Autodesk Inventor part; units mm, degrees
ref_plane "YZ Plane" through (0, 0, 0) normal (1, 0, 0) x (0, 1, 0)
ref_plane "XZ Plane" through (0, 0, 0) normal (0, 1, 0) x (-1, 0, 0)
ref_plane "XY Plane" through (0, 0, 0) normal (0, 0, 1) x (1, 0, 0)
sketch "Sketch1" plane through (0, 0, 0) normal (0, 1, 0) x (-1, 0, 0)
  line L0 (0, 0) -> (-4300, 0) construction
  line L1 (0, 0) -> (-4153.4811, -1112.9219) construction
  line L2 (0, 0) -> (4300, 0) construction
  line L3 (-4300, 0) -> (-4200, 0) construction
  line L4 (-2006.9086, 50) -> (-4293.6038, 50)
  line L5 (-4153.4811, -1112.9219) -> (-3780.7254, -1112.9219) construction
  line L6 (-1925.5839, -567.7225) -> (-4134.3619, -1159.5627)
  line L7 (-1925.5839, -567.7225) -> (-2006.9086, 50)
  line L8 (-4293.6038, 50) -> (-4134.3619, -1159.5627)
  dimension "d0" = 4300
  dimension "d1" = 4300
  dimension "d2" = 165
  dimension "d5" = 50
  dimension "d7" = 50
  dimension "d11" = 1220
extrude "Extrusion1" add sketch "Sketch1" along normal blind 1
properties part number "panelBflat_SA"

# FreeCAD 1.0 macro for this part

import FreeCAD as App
import Part
import Sketcher
Q = App.Units.Quantity


def add_polygon(sketch, points):
    """Adds a closed chain of lines whose ends are joined by coincident constraints."""
    first, n = sketch.GeometryCount, len(points)
    for a, b in zip(points, points[1:] + points[:1]):
        sketch.addGeometry(Part.LineSegment(App.Vector(*a, 0), App.Vector(*b, 0)), False)
    for i in range(n):
        sketch.addConstraint(Sketcher.Constraint("Coincident", first + i, 2, first + (i + 1) % n, 1))

doc = App.newDocument("Part")
body = doc.addObject("PartDesign::Body", "Body")

sketch1 = body.newObject("Sketcher::SketchObject", "Sketch")
sketch1.AttachmentSupport = (doc.getObject("XZ_Plane"), [""])
sketch1.MapMode = "FlatFace"
add_polygon(sketch1, [(1926, -568), (2007, 50), (4294, 50), (4134, -1160)])
sketch1.addConstraint([
    Sketcher.Constraint("Horizontal", 1),
    Sketcher.Constraint("Parallel", 0, 2),
    Sketcher.Constraint("Angle", 3, Q("165 deg")),
    Sketcher.Constraint("Distance", 2, Q("1220 mm")),
    Sketcher.Constraint("DistanceY", -1, 1, 0, 2, Q("50 mm")),
    Sketcher.Constraint("Angle", 0, Q("82.5 deg")),
    Sketcher.Constraint("DistanceX", 3, 2, 1, 2, Q("2368.02 mm")),
    Sketcher.Constraint("DistanceX", -1, 1, 2, 2, Q("4134.362 mm")),
])
pad1 = body.newObject("PartDesign::Pad", "Pad")
pad1.Profile = sketch1
pad1.Length = 1
pad1.Reversed = True

doc.recompute()
